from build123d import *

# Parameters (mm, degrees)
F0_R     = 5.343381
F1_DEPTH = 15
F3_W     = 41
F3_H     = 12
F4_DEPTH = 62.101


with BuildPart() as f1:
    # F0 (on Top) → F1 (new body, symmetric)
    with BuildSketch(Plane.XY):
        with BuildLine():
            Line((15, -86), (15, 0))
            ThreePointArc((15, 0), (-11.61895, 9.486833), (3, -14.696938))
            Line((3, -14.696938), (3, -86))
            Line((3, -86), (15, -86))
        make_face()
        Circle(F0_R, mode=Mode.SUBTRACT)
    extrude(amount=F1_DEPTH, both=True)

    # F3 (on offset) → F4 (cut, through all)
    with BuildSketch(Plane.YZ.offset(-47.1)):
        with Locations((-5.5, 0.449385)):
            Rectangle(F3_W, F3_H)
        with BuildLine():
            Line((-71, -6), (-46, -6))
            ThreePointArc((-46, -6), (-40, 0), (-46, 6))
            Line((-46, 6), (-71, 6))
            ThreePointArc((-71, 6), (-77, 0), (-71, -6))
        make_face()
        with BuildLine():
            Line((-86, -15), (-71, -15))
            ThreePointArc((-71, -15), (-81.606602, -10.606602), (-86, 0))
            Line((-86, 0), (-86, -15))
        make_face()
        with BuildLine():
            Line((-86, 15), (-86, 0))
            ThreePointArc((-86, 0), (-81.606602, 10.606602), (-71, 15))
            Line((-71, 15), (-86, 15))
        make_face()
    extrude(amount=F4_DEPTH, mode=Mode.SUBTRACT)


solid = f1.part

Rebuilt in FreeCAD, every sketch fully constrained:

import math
import FreeCAD as App
import Part
import Sketcher
Q = App.Units.Quantity

doc = App.newDocument("Part")
body = doc.addObject("PartDesign::Body", "Body")

sketch1 = body.newObject("Sketcher::SketchObject", "Sketch")
sketch1.AttachmentSupport = (doc.getObject("XY_Plane"), [""])
sketch1.MapMode = "FlatFace"
sketch1.addGeometry([
    Part.LineSegment(App.Vector(15, -86, 0), App.Vector(15, 0, 0)),
    Part.ArcOfCircle(Part.Circle(App.Vector(0, 0, 0), App.Vector(0, 0, 1), 15), math.radians(0), math.radians(282)),
    Part.LineSegment(App.Vector(3, -15, 0), App.Vector(3, -86, 0)),
    Part.LineSegment(App.Vector(3, -86, 0), App.Vector(15, -86, 0)),
    Part.Circle(App.Vector(0, 0, 0), App.Vector(0, 0, 1), 5),
], False)
sketch1.addConstraint([
    Sketcher.Constraint("Tangent", 0, 2, 1, 1),
    Sketcher.Constraint("Coincident", 1, 2, 2, 1),
    Sketcher.Constraint("Coincident", 2, 2, 3, 1),
    Sketcher.Constraint("Coincident", 3, 2, 0, 1),
    Sketcher.Constraint("Vertical", 0),
    Sketcher.Constraint("Vertical", 2),
    Sketcher.Constraint("Horizontal", 3),
    Sketcher.Constraint("Coincident", 1, 3, -1, 1),
    Sketcher.Constraint("Coincident", 4, 3, -1, 1),
    Sketcher.Constraint("Radius", 1, Q("15 mm")),
    Sketcher.Constraint("DistanceX", 3, 1, 3, 2, Q("12 mm")),
    Sketcher.Constraint("DistanceY", 0, 1, 0, 2, Q("86 mm")),
    Sketcher.Constraint("Diameter", 4, Q("10.686762 mm")),
])
pad1 = body.newObject("PartDesign::Pad", "Pad")
pad1.Profile = sketch1
pad1.Length = 30
pad1.Midplane = True

sketch2 = body.newObject("Sketcher::SketchObject", "Sketch001")
sketch2.AttachmentSupport = (doc.getObject("YZ_Plane"), [""])
sketch2.MapMode = "FlatFace"
sketch2.AttachmentOffset = App.Placement(App.Vector(0, 0, -47.1), App.Rotation())
sketch2.addGeometry([
    Part.LineSegment(App.Vector(-26, 6, 0), App.Vector(-26, -6, 0)),
    Part.LineSegment(App.Vector(-26, -6, 0), App.Vector(15, -6, 0)),
    Part.LineSegment(App.Vector(15, -6, 0), App.Vector(15, 6, 0)),
    Part.LineSegment(App.Vector(15, 6, 0), App.Vector(-26, 6, 0)),
    Part.LineSegment(App.Vector(-71, -6, 0), App.Vector(-46, -6, 0)),
    Part.ArcOfCircle(Part.Circle(App.Vector(-46, 0, 0), App.Vector(0, 0, 1), 6), math.radians(-90), math.radians(90)),
    Part.LineSegment(App.Vector(-46, 6, 0), App.Vector(-71, 6, 0)),
    Part.ArcOfCircle(Part.Circle(App.Vector(-71, 0, 0), App.Vector(0, 0, 1), 6), math.radians(90), math.radians(270)),
    Part.LineSegment(App.Vector(-86, -15, 0), App.Vector(-71, -15, 0)),
    Part.ArcOfCircle(Part.Circle(App.Vector(-71, 0, 0), App.Vector(0, 0, 1), 15), math.radians(180), math.radians(270)),
    Part.LineSegment(App.Vector(-86, 0, 0), App.Vector(-86, -15, 0)),
    Part.LineSegment(App.Vector(-86, 15, 0), App.Vector(-86, 0, 0)),
    Part.ArcOfCircle(Part.Circle(App.Vector(-71, 0, 0), App.Vector(0, 0, 1), 15), math.radians(90), math.radians(180)),
    Part.LineSegment(App.Vector(-71, 15, 0), App.Vector(-86, 15, 0)),
], False)
sketch2.addConstraint([
    Sketcher.Constraint("Coincident", 0, 2, 1, 1),
    Sketcher.Constraint("Coincident", 1, 2, 2, 1),
    Sketcher.Constraint("Coincident", 2, 2, 3, 1),
    Sketcher.Constraint("Coincident", 3, 2, 0, 1),
    Sketcher.Constraint("Tangent", 4, 2, 5, 1),
    Sketcher.Constraint("Tangent", 5, 2, 6, 1),
    Sketcher.Constraint("Tangent", 6, 2, 7, 1),
    Sketcher.Constraint("Tangent", 7, 2, 4, 1),
    Sketcher.Constraint("Tangent", 8, 2, 9, 2),
    Sketcher.Constraint("Tangent", 9, 1, 10, 1),
    Sketcher.Constraint("Coincident", 10, 2, 8, 1),
    Sketcher.Constraint("Tangent", 11, 2, 12, 2),
    Sketcher.Constraint("Tangent", 12, 1, 13, 1),
    Sketcher.Constraint("Coincident", 13, 2, 11, 1),
    Sketcher.Constraint("Vertical", 0),
    Sketcher.Constraint("Horizontal", 1),
    Sketcher.Constraint("Vertical", 2),
    Sketcher.Constraint("Horizontal", 3),
    Sketcher.Constraint("Horizontal", 4),
    Sketcher.Constraint("Horizontal", 6),
    Sketcher.Constraint("Horizontal", 8),
    Sketcher.Constraint("Vertical", 10),
    Sketcher.Constraint("Vertical", 11),
    Sketcher.Constraint("Horizontal", 13),
    Sketcher.Constraint("Coincident", 9, 3, 7, 3),
    Sketcher.Constraint("Coincident", 12, 3, 7, 3),
    Sketcher.Constraint("Equal", 9, 12),
    Sketcher.Constraint("PointOnObject", 5, 3, -1),
    Sketcher.Constraint("Radius", 5, Q("6 mm")),
    Sketcher.Constraint("Radius", 9, Q("14.999999 mm")),
    Sketcher.Constraint("DistanceX", 1, 1, 1, 2, Q("41 mm")),
    Sketcher.Constraint("DistanceX", 4, 1, 4, 2, Q("25 mm")),
    Sketcher.Constraint("DistanceY", 0, 2, 0, 1, Q("12 mm")),
    Sketcher.Constraint("DistanceX", 5, 3, -1, 1, Q("46 mm")),
    Sketcher.Constraint("DistanceX", 0, 2, -1, 1, Q("26 mm")),
    Sketcher.Constraint("DistanceY", 0, 2, -1, 1, Q("5.550615 mm")),
])
pocket1 = body.newObject("PartDesign::Pocket", "Pocket")
pocket1.Profile = sketch2
pocket1.Type = "ThroughAll"
pocket1.Reversed = True

doc.recompute()
